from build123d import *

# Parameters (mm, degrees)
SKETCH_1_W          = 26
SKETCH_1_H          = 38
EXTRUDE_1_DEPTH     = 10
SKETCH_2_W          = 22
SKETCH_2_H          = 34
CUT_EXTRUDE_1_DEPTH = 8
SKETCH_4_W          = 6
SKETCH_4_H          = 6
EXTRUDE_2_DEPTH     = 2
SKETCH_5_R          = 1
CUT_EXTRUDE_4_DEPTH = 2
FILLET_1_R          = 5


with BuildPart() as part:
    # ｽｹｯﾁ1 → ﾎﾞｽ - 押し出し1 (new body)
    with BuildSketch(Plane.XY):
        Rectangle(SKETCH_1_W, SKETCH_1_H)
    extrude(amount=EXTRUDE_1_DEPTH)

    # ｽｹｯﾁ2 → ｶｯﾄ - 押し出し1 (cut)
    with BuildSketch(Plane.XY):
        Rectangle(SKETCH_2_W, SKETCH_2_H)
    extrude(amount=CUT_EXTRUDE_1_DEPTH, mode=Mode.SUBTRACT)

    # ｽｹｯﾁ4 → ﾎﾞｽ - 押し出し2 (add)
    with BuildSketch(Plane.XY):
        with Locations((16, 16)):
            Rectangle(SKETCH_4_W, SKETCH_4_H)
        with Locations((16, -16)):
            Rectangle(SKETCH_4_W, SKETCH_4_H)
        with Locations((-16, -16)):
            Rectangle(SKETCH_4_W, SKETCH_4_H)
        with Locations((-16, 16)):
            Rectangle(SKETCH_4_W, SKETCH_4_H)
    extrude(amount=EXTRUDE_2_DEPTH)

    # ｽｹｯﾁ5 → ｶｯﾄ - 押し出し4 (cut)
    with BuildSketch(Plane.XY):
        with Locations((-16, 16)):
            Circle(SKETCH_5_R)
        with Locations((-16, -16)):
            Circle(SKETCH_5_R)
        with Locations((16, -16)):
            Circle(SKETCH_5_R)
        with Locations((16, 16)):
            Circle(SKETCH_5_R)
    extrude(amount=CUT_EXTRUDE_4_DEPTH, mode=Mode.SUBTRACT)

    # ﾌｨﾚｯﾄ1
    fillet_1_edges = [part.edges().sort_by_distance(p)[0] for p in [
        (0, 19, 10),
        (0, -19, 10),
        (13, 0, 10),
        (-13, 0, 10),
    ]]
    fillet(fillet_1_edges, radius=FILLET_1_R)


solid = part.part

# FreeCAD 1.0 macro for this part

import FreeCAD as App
import Part
import Sketcher


def edges_at(feature, points):
    """Names of the edges that pass closest to the given points."""
    edges = feature.Shape.Edges
    near = lambda p: min(range(len(edges)), key=lambda i: edges[i].distToShape(Part.Vertex(*p))[0])
    return sorted({f"Edge{near(p) + 1}" for p in points})

doc = App.newDocument("Part")
body = doc.addObject("PartDesign::Body", "Body")

sketch1 = body.newObject("Sketcher::SketchObject", "Sketch")
sketch1.AttachmentSupport = (doc.getObject("XY_Plane"), [""])
sketch1.MapMode = "FlatFace"
sketch1.addGeometry([
    Part.LineSegment(App.Vector(-13, 19, 0), App.Vector(-13, -19, 0)),
    Part.LineSegment(App.Vector(-13, -19, 0), App.Vector(13, -19, 0)),
    Part.LineSegment(App.Vector(13, -19, 0), App.Vector(13, 19, 0)),
    Part.LineSegment(App.Vector(13, 19, 0), App.Vector(-13, 19, 0)),
], False)
sketch1.addConstraint([
    Sketcher.Constraint("Coincident", 0, 2, 1, 1),
    Sketcher.Constraint("Coincident", 1, 2, 2, 1),
    Sketcher.Constraint("Coincident", 2, 2, 3, 1),
    Sketcher.Constraint("Coincident", 3, 2, 0, 1),
    Sketcher.Constraint("Vertical", 0),
    Sketcher.Constraint("Horizontal", 1),
    Sketcher.Constraint("Vertical", 2),
    Sketcher.Constraint("Horizontal", 3),
    Sketcher.Constraint("Symmetric", 0, 2, 2, 2, -1, 1),
    Sketcher.Constraint("DistanceX", 1, 1, 1, 2, 26.0),
    Sketcher.Constraint("DistanceY", 0, 2, 0, 1, 38.0),
])
pad1 = body.newObject("PartDesign::Pad", "Pad")
pad1.Profile = sketch1
pad1.Length = 10

sketch2 = body.newObject("Sketcher::SketchObject", "Sketch001")
sketch2.AttachmentSupport = (doc.getObject("XY_Plane"), [""])
sketch2.MapMode = "FlatFace"
sketch2.addGeometry([
    Part.LineSegment(App.Vector(-11, 17, 0), App.Vector(-11, -17, 0)),
    Part.LineSegment(App.Vector(-11, -17, 0), App.Vector(11, -17, 0)),
    Part.LineSegment(App.Vector(11, -17, 0), App.Vector(11, 17, 0)),
    Part.LineSegment(App.Vector(11, 17, 0), App.Vector(-11, 17, 0)),
], False)
sketch2.addConstraint([
    Sketcher.Constraint("Coincident", 0, 2, 1, 1),
    Sketcher.Constraint("Coincident", 1, 2, 2, 1),
    Sketcher.Constraint("Coincident", 2, 2, 3, 1),
    Sketcher.Constraint("Coincident", 3, 2, 0, 1),
    Sketcher.Constraint("Vertical", 0),
    Sketcher.Constraint("Horizontal", 1),
    Sketcher.Constraint("Vertical", 2),
    Sketcher.Constraint("Horizontal", 3),
    Sketcher.Constraint("Symmetric", 0, 2, 2, 2, -1, 1),
    Sketcher.Constraint("DistanceX", 1, 1, 1, 2, 22.0),
    Sketcher.Constraint("DistanceY", 0, 2, 0, 1, 34.0),
])
pocket1 = body.newObject("PartDesign::Pocket", "Pocket")
pocket1.Profile = sketch2
pocket1.Length = 8
pocket1.Reversed = True

sketch3 = body.newObject("Sketcher::SketchObject", "Sketch002")
sketch3.AttachmentSupport = (doc.getObject("XY_Plane"), [""])
sketch3.MapMode = "FlatFace"
sketch3.addGeometry([
    Part.LineSegment(App.Vector(13, 19, 0), App.Vector(13, 13, 0)),
    Part.LineSegment(App.Vector(13, 13, 0), App.Vector(19, 13, 0)),
    Part.LineSegment(App.Vector(19, 13, 0), App.Vector(19, 19, 0)),
    Part.LineSegment(App.Vector(19, 19, 0), App.Vector(13, 19, 0)),
    Part.LineSegment(App.Vector(13, -13, 0), App.Vector(13, -19, 0)),
    Part.LineSegment(App.Vector(13, -19, 0), App.Vector(19, -19, 0)),
    Part.LineSegment(App.Vector(19, -19, 0), App.Vector(19, -13, 0)),
    Part.LineSegment(App.Vector(19, -13, 0), App.Vector(13, -13, 0)),
    Part.LineSegment(App.Vector(-19, -13, 0), App.Vector(-19, -19, 0)),
    Part.LineSegment(App.Vector(-19, -19, 0), App.Vector(-13, -19, 0)),
    Part.LineSegment(App.Vector(-13, -19, 0), App.Vector(-13, -13, 0)),
    Part.LineSegment(App.Vector(-13, -13, 0), App.Vector(-19, -13, 0)),
    Part.LineSegment(App.Vector(-19, 19, 0), App.Vector(-19, 13, 0)),
    Part.LineSegment(App.Vector(-19, 13, 0), App.Vector(-13, 13, 0)),
    Part.LineSegment(App.Vector(-13, 13, 0), App.Vector(-13, 19, 0)),
    Part.LineSegment(App.Vector(-13, 19, 0), App.Vector(-19, 19, 0)),
], False)
sketch3.addConstraint([
    Sketcher.Constraint("Coincident", 0, 2, 1, 1),
    Sketcher.Constraint("Coincident", 1, 2, 2, 1),
    Sketcher.Constraint("Coincident", 2, 2, 3, 1),
    Sketcher.Constraint("Coincident", 3, 2, 0, 1),
    Sketcher.Constraint("Coincident", 4, 2, 5, 1),
    Sketcher.Constraint("Coincident", 5, 2, 6, 1),
    Sketcher.Constraint("Coincident", 6, 2, 7, 1),
    Sketcher.Constraint("Coincident", 7, 2, 4, 1),
    Sketcher.Constraint("Coincident", 8, 2, 9, 1),
    Sketcher.Constraint("Coincident", 9, 2, 10, 1),
    Sketcher.Constraint("Coincident", 10, 2, 11, 1),
    Sketcher.Constraint("Coincident", 11, 2, 8, 1),
    Sketcher.Constraint("Coincident", 12, 2, 13, 1),
    Sketcher.Constraint("Coincident", 13, 2, 14, 1),
    Sketcher.Constraint("Coincident", 14, 2, 15, 1),
    Sketcher.Constraint("Coincident", 15, 2, 12, 1),
    Sketcher.Constraint("Vertical", 0),
    Sketcher.Constraint("Horizontal", 1),
    Sketcher.Constraint("Vertical", 2),
    Sketcher.Constraint("Horizontal", 3),
    Sketcher.Constraint("Vertical", 4),
    Sketcher.Constraint("Horizontal", 5),
    Sketcher.Constraint("Vertical", 6),
    Sketcher.Constraint("Horizontal", 7),
    Sketcher.Constraint("Vertical", 8),
    Sketcher.Constraint("Horizontal", 9),
    Sketcher.Constraint("Vertical", 10),
    Sketcher.Constraint("Horizontal", 11),
    Sketcher.Constraint("Vertical", 12),
    Sketcher.Constraint("Horizontal", 13),
    Sketcher.Constraint("Vertical", 14),
    Sketcher.Constraint("Horizontal", 15),
    Sketcher.Constraint("Symmetric", 2, 2, 8, 2, -1, 1),
    Sketcher.Constraint("Symmetric", 0, 2, 10, 2, -1, 1),
    Sketcher.Constraint("Symmetric", 6, 2, 12, 2, -1, 1),
    Sketcher.Constraint("Symmetric", 4, 2, 14, 2, -1, 1),
    Sketcher.Constraint("Symmetric", 5, 2, 8, 2, -2),
    Sketcher.Constraint("Symmetric", 7, 2, 10, 2, -2),
    Sketcher.Constraint("Equal", 15, 0),
    Sketcher.Constraint("DistanceX", 1, 1, 1, 2, 6.0),
    Sketcher.Constraint("DistanceX", -1, 1, 0, 2, 13.0),
    Sketcher.Constraint("DistanceY", -1, 1, 0, 2, 13.0),
])
pad2 = body.newObject("PartDesign::Pad", "Pad001")
pad2.Profile = sketch3
pad2.Length = 2

sketch4 = body.newObject("Sketcher::SketchObject", "Sketch003")
sketch4.AttachmentSupport = (doc.getObject("XY_Plane"), [""])
sketch4.MapMode = "FlatFace"
sketch4.addGeometry([
    Part.Circle(App.Vector(-16, 16, 0), App.Vector(0, 0, 1), 1),
    Part.Circle(App.Vector(-16, -16, 0), App.Vector(0, 0, 1), 1),
    Part.Circle(App.Vector(16, -16, 0), App.Vector(0, 0, 1), 1),
    Part.Circle(App.Vector(16, 16, 0), App.Vector(0, 0, 1), 1),
], False)
sketch4.addConstraint([
    Sketcher.Constraint("Equal", 0, 1),
    Sketcher.Constraint("Equal", 1, 2),
    Sketcher.Constraint("Equal", 2, 3),
    Sketcher.Constraint("Symmetric", 0, 3, 2, 3, -1, 1),
    Sketcher.Constraint("Symmetric", 1, 3, 3, 3, -1, 1),
    Sketcher.Constraint("Symmetric", 1, 3, 2, 3, -2),
    Sketcher.Constraint("Diameter", 0, 2.0),
    Sketcher.Constraint("DistanceX", 0, 3, -1, 1, 16.0),
    Sketcher.Constraint("DistanceY", -1, 1, 0, 3, 16.0),
])
pocket2 = body.newObject("PartDesign::Pocket", "Pocket001")
pocket2.Profile = sketch4
pocket2.Length = 2
pocket2.Reversed = True
doc.recompute()

fillet = body.newObject("PartDesign::Fillet", "Fillet")
fillet.Base = (pocket2, edges_at(pocket2, [
    (0, 19, 10),
    (0, -19, 10),
    (13, 0, 10),
    (-13, 0, 10),
]))
fillet.Radius = 5

doc.recompute()
